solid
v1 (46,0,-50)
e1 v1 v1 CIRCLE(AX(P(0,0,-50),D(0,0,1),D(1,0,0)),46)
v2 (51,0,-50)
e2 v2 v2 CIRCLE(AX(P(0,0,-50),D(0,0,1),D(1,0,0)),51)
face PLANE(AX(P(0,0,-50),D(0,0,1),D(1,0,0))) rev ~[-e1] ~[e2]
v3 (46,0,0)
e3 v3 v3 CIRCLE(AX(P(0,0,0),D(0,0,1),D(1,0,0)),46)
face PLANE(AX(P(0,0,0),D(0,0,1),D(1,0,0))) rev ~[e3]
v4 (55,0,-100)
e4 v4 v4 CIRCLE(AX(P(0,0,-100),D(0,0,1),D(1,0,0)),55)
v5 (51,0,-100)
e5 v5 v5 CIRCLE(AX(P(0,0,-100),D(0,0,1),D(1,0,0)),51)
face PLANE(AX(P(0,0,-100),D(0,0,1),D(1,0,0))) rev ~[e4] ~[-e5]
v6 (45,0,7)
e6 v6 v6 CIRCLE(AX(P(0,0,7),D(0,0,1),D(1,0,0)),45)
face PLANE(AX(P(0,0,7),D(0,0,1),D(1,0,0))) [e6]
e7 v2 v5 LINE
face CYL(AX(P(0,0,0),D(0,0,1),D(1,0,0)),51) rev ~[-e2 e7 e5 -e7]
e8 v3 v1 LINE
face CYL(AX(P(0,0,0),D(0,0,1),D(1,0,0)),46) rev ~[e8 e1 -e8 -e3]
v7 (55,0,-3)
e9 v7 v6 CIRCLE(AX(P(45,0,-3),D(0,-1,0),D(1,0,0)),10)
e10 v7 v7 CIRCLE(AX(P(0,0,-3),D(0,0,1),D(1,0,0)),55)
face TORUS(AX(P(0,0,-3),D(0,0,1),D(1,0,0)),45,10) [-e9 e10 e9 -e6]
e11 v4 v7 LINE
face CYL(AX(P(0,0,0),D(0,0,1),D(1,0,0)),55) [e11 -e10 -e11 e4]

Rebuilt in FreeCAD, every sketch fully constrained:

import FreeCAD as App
import Part
import Sketcher


def edges_at(feature, points):
    """Names of the edges that pass closest to the given points."""
    edges = feature.Shape.Edges
    near = lambda p: min(range(len(edges)), key=lambda i: edges[i].distToShape(Part.Vertex(*p))[0])
    return sorted({f"Edge{near(p) + 1}" for p in points})

doc = App.newDocument("Part")
body = doc.addObject("PartDesign::Body", "Body")

# Sketch on XY plane
sketch1 = body.newObject("Sketcher::SketchObject", "Sketch")
sketch1.AttachmentSupport = (doc.getObject("XY_Plane"), [""])
sketch1.MapMode = "FlatFace"
sketch1.addGeometry(Part.Circle(App.Vector(0, 0, 0), App.Vector(0, 0, 1), 55), False)
sketch1.addConstraint([
    Sketcher.Constraint("Coincident", 0, 3, -1, 1),
    Sketcher.Constraint("Diameter", 0, 110.0),
])
pad1 = body.newObject("PartDesign::Pad", "Pad")
pad1.Profile = sketch1
pad1.Length = 7

# Sketch on XY plane
sketch2 = body.newObject("Sketcher::SketchObject", "Sketch001")
sketch2.AttachmentSupport = (doc.getObject("XY_Plane"), [""])
sketch2.MapMode = "FlatFace"
sketch2.addGeometry([
    Part.Circle(App.Vector(0, 0, 0), App.Vector(0, 0, 1), 51),
    Part.Circle(App.Vector(0, 0, 0), App.Vector(0, 0, 1), 46),
], False)
sketch2.addConstraint([
    Sketcher.Constraint("Coincident", 0, 3, -1, 1),
    Sketcher.Constraint("Coincident", 1, 3, -1, 1),
    Sketcher.Constraint("Diameter", 0, 102.0),
    Sketcher.Constraint("Diameter", 1, 92.0),
])
pad2 = body.newObject("PartDesign::Pad", "Pad001")
pad2.Profile = sketch2
pad2.Length = 50
pad2.Reversed = True

# Sketch on XY plane
sketch3 = body.newObject("Sketcher::SketchObject", "Sketch002")
sketch3.AttachmentSupport = (doc.getObject("XY_Plane"), [""])
sketch3.MapMode = "FlatFace"
sketch3.addGeometry([
    Part.Circle(App.Vector(0, 0, 0), App.Vector(0, 0, 1), 55),
    Part.Circle(App.Vector(0, 0, 0), App.Vector(0, 0, 1), 51),
], False)
sketch3.addConstraint([
    Sketcher.Constraint("Coincident", 0, 3, -1, 1),
    Sketcher.Constraint("Coincident", 1, 3, -1, 1),
    Sketcher.Constraint("Diameter", 0, 110.0),
    Sketcher.Constraint("Diameter", 1, 102.0),
])
pad3 = body.newObject("PartDesign::Pad", "Pad002")
pad3.Profile = sketch3
pad3.Length = 100
pad3.Reversed = True
doc.recompute()

fillet = body.newObject("PartDesign::Fillet", "Fillet")
fillet.Base = (pad3, edges_at(pad3, [(-55, 0, 7)]))
fillet.Radius = 10

doc.recompute()
